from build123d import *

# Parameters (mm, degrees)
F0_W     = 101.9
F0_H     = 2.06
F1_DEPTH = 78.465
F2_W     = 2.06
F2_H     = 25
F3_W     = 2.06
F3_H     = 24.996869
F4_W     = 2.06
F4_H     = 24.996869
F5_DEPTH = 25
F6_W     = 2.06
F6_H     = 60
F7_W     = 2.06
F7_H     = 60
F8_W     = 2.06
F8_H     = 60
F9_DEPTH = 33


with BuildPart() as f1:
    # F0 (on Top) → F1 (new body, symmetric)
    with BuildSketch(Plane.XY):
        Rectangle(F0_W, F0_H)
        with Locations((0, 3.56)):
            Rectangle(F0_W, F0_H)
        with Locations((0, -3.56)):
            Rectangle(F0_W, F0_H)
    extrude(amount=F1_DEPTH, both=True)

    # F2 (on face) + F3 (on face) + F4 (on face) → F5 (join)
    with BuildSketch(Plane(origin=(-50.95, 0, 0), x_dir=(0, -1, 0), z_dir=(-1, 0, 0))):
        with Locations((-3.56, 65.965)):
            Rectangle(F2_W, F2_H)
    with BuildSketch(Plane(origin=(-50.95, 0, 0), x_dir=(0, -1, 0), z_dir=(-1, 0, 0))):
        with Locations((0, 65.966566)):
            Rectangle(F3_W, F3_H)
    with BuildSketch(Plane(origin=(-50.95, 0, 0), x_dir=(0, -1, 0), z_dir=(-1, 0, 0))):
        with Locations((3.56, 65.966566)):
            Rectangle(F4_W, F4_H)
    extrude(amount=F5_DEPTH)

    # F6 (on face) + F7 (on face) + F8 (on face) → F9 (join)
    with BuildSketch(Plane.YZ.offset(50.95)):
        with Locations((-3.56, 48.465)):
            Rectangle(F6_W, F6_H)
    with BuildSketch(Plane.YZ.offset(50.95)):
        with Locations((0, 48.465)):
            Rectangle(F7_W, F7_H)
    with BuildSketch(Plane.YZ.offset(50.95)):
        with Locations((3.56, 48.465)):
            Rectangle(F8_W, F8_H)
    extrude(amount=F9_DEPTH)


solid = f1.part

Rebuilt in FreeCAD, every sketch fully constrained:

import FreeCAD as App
import Part
import Sketcher

V = App.Vector
Q = App.Units.Quantity

doc = App.newDocument("Part")
body = doc.addObject("PartDesign::Body", "Body")
body.AllowCompound = True

# Sketch on XY plane
sketch1 = body.newObject("Sketcher::SketchObject", "Sketch")
sketch1.AttachmentSupport = (doc.getObject("XY_Plane"), [""])
sketch1.MapMode = "FlatFace"
sketch1.addGeometry([
    Part.LineSegment(V(-51, 1, 0), V(-51, -1, 0)),  # 0
    Part.LineSegment(V(-51, -1, 0), V(51, -1, 0)),  # 1
    Part.LineSegment(V(51, -1, 0), V(51, 1, 0)),  # 2
    Part.LineSegment(V(51, 1, 0), V(-51, 1, 0)),  # 3
    Part.LineSegment(V(-51, 4.6, 0), V(-51, 2.5, 0)),  # 4
    Part.LineSegment(V(-51, 2.5, 0), V(51, 2.5, 0)),  # 5
    Part.LineSegment(V(51, 2.5, 0), V(51, 4.6, 0)),  # 6
    Part.LineSegment(V(51, 4.6, 0), V(-51, 4.6, 0)),  # 7
    Part.LineSegment(V(-51, -2.5, 0), V(-51, -4.6, 0)),  # 8
    Part.LineSegment(V(-51, -4.6, 0), V(51, -4.6, 0)),  # 9
    Part.LineSegment(V(51, -4.6, 0), V(51, -2.5, 0)),  # 10
    Part.LineSegment(V(51, -2.5, 0), V(-51, -2.5, 0)),  # 11
], False)
sketch1.addConstraint([
    Sketcher.Constraint("Coincident", 0, 2, 1, 1),
    Sketcher.Constraint("Coincident", 1, 2, 2, 1),
    Sketcher.Constraint("Coincident", 2, 2, 3, 1),
    Sketcher.Constraint("Coincident", 3, 2, 0, 1),
    Sketcher.Constraint("Coincident", 4, 2, 5, 1),
    Sketcher.Constraint("Coincident", 5, 2, 6, 1),
    Sketcher.Constraint("Coincident", 6, 2, 7, 1),
    Sketcher.Constraint("Coincident", 7, 2, 4, 1),
    Sketcher.Constraint("Coincident", 8, 2, 9, 1),
    Sketcher.Constraint("Coincident", 9, 2, 10, 1),
    Sketcher.Constraint("Coincident", 10, 2, 11, 1),
    Sketcher.Constraint("Coincident", 11, 2, 8, 1),
    Sketcher.Constraint("Vertical", 0),
    Sketcher.Constraint("Horizontal", 1),
    Sketcher.Constraint("Vertical", 2),
    Sketcher.Constraint("Horizontal", 3),
    Sketcher.Constraint("Vertical", 4),
    Sketcher.Constraint("Horizontal", 5),
    Sketcher.Constraint("Vertical", 6),
    Sketcher.Constraint("Horizontal", 7),
    Sketcher.Constraint("Vertical", 8),
    Sketcher.Constraint("Horizontal", 9),
    Sketcher.Constraint("Vertical", 10),
    Sketcher.Constraint("Horizontal", 11),
    Sketcher.Constraint("Symmetric", 0, 2, 2, 2, -1, 1),
    Sketcher.Constraint("Symmetric", 6, 2, 8, 2, -1, 1),
    Sketcher.Constraint("Symmetric", 4, 2, 10, 2, -1, 1),
    Sketcher.Constraint("Vertical", 3, 2, 4, 2),
    Sketcher.Constraint("Vertical", 2, 2, 5, 2),
    Sketcher.Constraint("Equal", 2, 4),
    Sketcher.Constraint("DistanceX", 1, 1, 1, 2, Q("101.9 mm")),
    Sketcher.Constraint("DistanceY", 0, 2, 0, 1, Q("2.06 mm")),
    Sketcher.Constraint("DistanceY", 3, 2, 4, 2, Q("1.5 mm")),
])
pad1 = body.newObject("PartDesign::Pad", "Pad")
pad1.Profile = sketch1
pad1.Length = 156.93
pad1.Midplane = True

# Sketch on YZ plane
sketch2 = body.newObject("Sketcher::SketchObject", "Sketch001")
sketch2.AttachmentSupport = (doc.getObject("YZ_Plane"), [""])
sketch2.MapMode = "FlatFace"
sketch2.AttachmentOffset = App.Placement(V(0, 0, -50.95), App.Rotation())
sketch2.addGeometry([
    Part.LineSegment(V(4.6, 78.5, 0), V(4.6, 53.5, 0)),  # 0
    Part.LineSegment(V(4.6, 53.5, 0), V(2.5, 53.5, 0)),  # 1
    Part.LineSegment(V(2.5, 53.5, 0), V(2.5, 78.5, 0)),  # 2
    Part.LineSegment(V(2.5, 78.5, 0), V(4.6, 78.5, 0)),  # 3
    Part.LineSegment(V(1, 78.5, 0), V(1, 53.5, 0)),  # 4
    Part.LineSegment(V(1, 53.5, 0), V(-1, 53.5, 0)),  # 5
    Part.LineSegment(V(-1, 53.5, 0), V(-1, 78.5, 0)),  # 6
    Part.LineSegment(V(-1, 78.5, 0), V(1, 78.5, 0)),  # 7
    Part.LineSegment(V(-2.5, 78.5, 0), V(-2.5, 53.5, 0)),  # 8
    Part.LineSegment(V(-2.5, 53.5, 0), V(-4.6, 53.5, 0)),  # 9
    Part.LineSegment(V(-4.6, 53.5, 0), V(-4.6, 78.5, 0)),  # 10
    Part.LineSegment(V(-4.6, 78.5, 0), V(-2.5, 78.5, 0)),  # 11
], False)
sketch2.addConstraint([
    Sketcher.Constraint("Coincident", 0, 2, 1, 1),
    Sketcher.Constraint("Coincident", 1, 2, 2, 1),
    Sketcher.Constraint("Coincident", 2, 2, 3, 1),
    Sketcher.Constraint("Coincident", 3, 2, 0, 1),
    Sketcher.Constraint("Coincident", 4, 2, 5, 1),
    Sketcher.Constraint("Coincident", 5, 2, 6, 1),
    Sketcher.Constraint("Coincident", 6, 2, 7, 1),
    Sketcher.Constraint("Coincident", 7, 2, 4, 1),
    Sketcher.Constraint("Coincident", 8, 2, 9, 1),
    Sketcher.Constraint("Coincident", 9, 2, 10, 1),
    Sketcher.Constraint("Coincident", 10, 2, 11, 1),
    Sketcher.Constraint("Coincident", 11, 2, 8, 1),
    Sketcher.Constraint("Vertical", 0),
    Sketcher.Constraint("Horizontal", 1),
    Sketcher.Constraint("Vertical", 2),
    Sketcher.Constraint("Horizontal", 3),
    Sketcher.Constraint("Vertical", 4),
    Sketcher.Constraint("Horizontal", 5),
    Sketcher.Constraint("Vertical", 6),
    Sketcher.Constraint("Horizontal", 7),
    Sketcher.Constraint("Vertical", 8),
    Sketcher.Constraint("Horizontal", 9),
    Sketcher.Constraint("Vertical", 10),
    Sketcher.Constraint("Horizontal", 11),
    Sketcher.Constraint("Symmetric", 3, 2, 10, 2, -2),
    Sketcher.Constraint("Horizontal", 3, 2, 6, 2),
    Sketcher.Constraint("Horizontal", 5, 2, 8, 2),
    Sketcher.Constraint("Equal", 3, 5),
    Sketcher.Constraint("Equal", 7, 9),
    Sketcher.Constraint("DistanceY", 0, 2, 0, 1, Q("25 mm")),
    Sketcher.Constraint("DistanceX", 1, 2, 1, 1, Q("2.06 mm")),
    Sketcher.Constraint("DistanceX", 4, 2, 1, 2, Q("1.5 mm")),
    Sketcher.Constraint("DistanceX", 8, 2, 5, 2, Q("1.5 mm")),
    Sketcher.Constraint("DistanceY", -1, 1, 0, 2, Q("53.465 mm")),
    Sketcher.Constraint("DistanceY", 4, 2, 4, 1, Q("24.996869 mm")),
])
pad2 = body.newObject("PartDesign::Pad", "Pad001")
pad2.Profile = sketch2
pad2.Length = 25
pad2.Reversed = True

# Sketch on YZ plane
sketch3 = body.newObject("Sketcher::SketchObject", "Sketch002")
sketch3.AttachmentSupport = (doc.getObject("YZ_Plane"), [""])
sketch3.MapMode = "FlatFace"
sketch3.AttachmentOffset = App.Placement(V(0, 0, 50.95), App.Rotation())
sketch3.addGeometry([
    Part.LineSegment(V(-4.6, 78.5, 0), V(-4.6, 18.5, 0)),  # 0
    Part.LineSegment(V(-4.6, 18.5, 0), V(-2.5, 18.5, 0)),  # 1
    Part.LineSegment(V(-2.5, 18.5, 0), V(-2.5, 78.5, 0)),  # 2
    Part.LineSegment(V(-2.5, 78.5, 0), V(-4.6, 78.5, 0)),  # 3
    Part.LineSegment(V(-1, 78.5, 0), V(-1, 18.5, 0)),  # 4
    Part.LineSegment(V(-1, 18.5, 0), V(1, 18.5, 0)),  # 5
    Part.LineSegment(V(1, 18.5, 0), V(1, 78.5, 0)),  # 6
    Part.LineSegment(V(1, 78.5, 0), V(-1, 78.5, 0)),  # 7
    Part.LineSegment(V(2.5, 78.5, 0), V(2.5, 18.5, 0)),  # 8
    Part.LineSegment(V(2.5, 18.5, 0), V(4.6, 18.5, 0)),  # 9
    Part.LineSegment(V(4.6, 18.5, 0), V(4.6, 78.5, 0)),  # 10
    Part.LineSegment(V(4.6, 78.5, 0), V(2.5, 78.5, 0)),  # 11
], False)
sketch3.addConstraint([
    Sketcher.Constraint("Coincident", 0, 2, 1, 1),
    Sketcher.Constraint("Coincident", 1, 2, 2, 1),
    Sketcher.Constraint("Coincident", 2, 2, 3, 1),
    Sketcher.Constraint("Coincident", 3, 2, 0, 1),
    Sketcher.Constraint("Coincident", 4, 2, 5, 1),
    Sketcher.Constraint("Coincident", 5, 2, 6, 1),
    Sketcher.Constraint("Coincident", 6, 2, 7, 1),
    Sketcher.Constraint("Coincident", 7, 2, 4, 1),
    Sketcher.Constraint("Coincident", 8, 2, 9, 1),
    Sketcher.Constraint("Coincident", 9, 2, 10, 1),
    Sketcher.Constraint("Coincident", 10, 2, 11, 1),
    Sketcher.Constraint("Coincident", 11, 2, 8, 1),
    Sketcher.Constraint("Vertical", 0),
    Sketcher.Constraint("Horizontal", 1),
    Sketcher.Constraint("Vertical", 2),
    Sketcher.Constraint("Horizontal", 3),
    Sketcher.Constraint("Vertical", 4),
    Sketcher.Constraint("Horizontal", 5),
    Sketcher.Constraint("Vertical", 6),
    Sketcher.Constraint("Horizontal", 7),
    Sketcher.Constraint("Vertical", 8),
    Sketcher.Constraint("Horizontal", 9),
    Sketcher.Constraint("Vertical", 10),
    Sketcher.Constraint("Horizontal", 11),
    Sketcher.Constraint("Symmetric", 1, 2, 8, 2, -2),
    Sketcher.Constraint("Symmetric", 3, 2, 10, 2, -2),
    Sketcher.Constraint("Horizontal", 1, 2, 4, 2),
    Sketcher.Constraint("Horizontal", 3, 2, 6, 2),
    Sketcher.Constraint("Equal", 3, 5),
    Sketcher.Constraint("DistanceY", 0, 2, 0, 1, Q("60 mm")),
    Sketcher.Constraint("DistanceX", 1, 1, 1, 2, Q("2.06 mm")),
    Sketcher.Constraint("DistanceX", 1, 2, 4, 2, Q("1.5 mm")),
    Sketcher.Constraint("DistanceX", 5, 2, 8, 2, Q("1.5 mm")),
    Sketcher.Constraint("DistanceY", -1, 1, 0, 2, Q("18.465 mm")),
])
pad3 = body.newObject("PartDesign::Pad", "Pad002")
pad3.Profile = sketch3
pad3.Length = 33

doc.recompute()
